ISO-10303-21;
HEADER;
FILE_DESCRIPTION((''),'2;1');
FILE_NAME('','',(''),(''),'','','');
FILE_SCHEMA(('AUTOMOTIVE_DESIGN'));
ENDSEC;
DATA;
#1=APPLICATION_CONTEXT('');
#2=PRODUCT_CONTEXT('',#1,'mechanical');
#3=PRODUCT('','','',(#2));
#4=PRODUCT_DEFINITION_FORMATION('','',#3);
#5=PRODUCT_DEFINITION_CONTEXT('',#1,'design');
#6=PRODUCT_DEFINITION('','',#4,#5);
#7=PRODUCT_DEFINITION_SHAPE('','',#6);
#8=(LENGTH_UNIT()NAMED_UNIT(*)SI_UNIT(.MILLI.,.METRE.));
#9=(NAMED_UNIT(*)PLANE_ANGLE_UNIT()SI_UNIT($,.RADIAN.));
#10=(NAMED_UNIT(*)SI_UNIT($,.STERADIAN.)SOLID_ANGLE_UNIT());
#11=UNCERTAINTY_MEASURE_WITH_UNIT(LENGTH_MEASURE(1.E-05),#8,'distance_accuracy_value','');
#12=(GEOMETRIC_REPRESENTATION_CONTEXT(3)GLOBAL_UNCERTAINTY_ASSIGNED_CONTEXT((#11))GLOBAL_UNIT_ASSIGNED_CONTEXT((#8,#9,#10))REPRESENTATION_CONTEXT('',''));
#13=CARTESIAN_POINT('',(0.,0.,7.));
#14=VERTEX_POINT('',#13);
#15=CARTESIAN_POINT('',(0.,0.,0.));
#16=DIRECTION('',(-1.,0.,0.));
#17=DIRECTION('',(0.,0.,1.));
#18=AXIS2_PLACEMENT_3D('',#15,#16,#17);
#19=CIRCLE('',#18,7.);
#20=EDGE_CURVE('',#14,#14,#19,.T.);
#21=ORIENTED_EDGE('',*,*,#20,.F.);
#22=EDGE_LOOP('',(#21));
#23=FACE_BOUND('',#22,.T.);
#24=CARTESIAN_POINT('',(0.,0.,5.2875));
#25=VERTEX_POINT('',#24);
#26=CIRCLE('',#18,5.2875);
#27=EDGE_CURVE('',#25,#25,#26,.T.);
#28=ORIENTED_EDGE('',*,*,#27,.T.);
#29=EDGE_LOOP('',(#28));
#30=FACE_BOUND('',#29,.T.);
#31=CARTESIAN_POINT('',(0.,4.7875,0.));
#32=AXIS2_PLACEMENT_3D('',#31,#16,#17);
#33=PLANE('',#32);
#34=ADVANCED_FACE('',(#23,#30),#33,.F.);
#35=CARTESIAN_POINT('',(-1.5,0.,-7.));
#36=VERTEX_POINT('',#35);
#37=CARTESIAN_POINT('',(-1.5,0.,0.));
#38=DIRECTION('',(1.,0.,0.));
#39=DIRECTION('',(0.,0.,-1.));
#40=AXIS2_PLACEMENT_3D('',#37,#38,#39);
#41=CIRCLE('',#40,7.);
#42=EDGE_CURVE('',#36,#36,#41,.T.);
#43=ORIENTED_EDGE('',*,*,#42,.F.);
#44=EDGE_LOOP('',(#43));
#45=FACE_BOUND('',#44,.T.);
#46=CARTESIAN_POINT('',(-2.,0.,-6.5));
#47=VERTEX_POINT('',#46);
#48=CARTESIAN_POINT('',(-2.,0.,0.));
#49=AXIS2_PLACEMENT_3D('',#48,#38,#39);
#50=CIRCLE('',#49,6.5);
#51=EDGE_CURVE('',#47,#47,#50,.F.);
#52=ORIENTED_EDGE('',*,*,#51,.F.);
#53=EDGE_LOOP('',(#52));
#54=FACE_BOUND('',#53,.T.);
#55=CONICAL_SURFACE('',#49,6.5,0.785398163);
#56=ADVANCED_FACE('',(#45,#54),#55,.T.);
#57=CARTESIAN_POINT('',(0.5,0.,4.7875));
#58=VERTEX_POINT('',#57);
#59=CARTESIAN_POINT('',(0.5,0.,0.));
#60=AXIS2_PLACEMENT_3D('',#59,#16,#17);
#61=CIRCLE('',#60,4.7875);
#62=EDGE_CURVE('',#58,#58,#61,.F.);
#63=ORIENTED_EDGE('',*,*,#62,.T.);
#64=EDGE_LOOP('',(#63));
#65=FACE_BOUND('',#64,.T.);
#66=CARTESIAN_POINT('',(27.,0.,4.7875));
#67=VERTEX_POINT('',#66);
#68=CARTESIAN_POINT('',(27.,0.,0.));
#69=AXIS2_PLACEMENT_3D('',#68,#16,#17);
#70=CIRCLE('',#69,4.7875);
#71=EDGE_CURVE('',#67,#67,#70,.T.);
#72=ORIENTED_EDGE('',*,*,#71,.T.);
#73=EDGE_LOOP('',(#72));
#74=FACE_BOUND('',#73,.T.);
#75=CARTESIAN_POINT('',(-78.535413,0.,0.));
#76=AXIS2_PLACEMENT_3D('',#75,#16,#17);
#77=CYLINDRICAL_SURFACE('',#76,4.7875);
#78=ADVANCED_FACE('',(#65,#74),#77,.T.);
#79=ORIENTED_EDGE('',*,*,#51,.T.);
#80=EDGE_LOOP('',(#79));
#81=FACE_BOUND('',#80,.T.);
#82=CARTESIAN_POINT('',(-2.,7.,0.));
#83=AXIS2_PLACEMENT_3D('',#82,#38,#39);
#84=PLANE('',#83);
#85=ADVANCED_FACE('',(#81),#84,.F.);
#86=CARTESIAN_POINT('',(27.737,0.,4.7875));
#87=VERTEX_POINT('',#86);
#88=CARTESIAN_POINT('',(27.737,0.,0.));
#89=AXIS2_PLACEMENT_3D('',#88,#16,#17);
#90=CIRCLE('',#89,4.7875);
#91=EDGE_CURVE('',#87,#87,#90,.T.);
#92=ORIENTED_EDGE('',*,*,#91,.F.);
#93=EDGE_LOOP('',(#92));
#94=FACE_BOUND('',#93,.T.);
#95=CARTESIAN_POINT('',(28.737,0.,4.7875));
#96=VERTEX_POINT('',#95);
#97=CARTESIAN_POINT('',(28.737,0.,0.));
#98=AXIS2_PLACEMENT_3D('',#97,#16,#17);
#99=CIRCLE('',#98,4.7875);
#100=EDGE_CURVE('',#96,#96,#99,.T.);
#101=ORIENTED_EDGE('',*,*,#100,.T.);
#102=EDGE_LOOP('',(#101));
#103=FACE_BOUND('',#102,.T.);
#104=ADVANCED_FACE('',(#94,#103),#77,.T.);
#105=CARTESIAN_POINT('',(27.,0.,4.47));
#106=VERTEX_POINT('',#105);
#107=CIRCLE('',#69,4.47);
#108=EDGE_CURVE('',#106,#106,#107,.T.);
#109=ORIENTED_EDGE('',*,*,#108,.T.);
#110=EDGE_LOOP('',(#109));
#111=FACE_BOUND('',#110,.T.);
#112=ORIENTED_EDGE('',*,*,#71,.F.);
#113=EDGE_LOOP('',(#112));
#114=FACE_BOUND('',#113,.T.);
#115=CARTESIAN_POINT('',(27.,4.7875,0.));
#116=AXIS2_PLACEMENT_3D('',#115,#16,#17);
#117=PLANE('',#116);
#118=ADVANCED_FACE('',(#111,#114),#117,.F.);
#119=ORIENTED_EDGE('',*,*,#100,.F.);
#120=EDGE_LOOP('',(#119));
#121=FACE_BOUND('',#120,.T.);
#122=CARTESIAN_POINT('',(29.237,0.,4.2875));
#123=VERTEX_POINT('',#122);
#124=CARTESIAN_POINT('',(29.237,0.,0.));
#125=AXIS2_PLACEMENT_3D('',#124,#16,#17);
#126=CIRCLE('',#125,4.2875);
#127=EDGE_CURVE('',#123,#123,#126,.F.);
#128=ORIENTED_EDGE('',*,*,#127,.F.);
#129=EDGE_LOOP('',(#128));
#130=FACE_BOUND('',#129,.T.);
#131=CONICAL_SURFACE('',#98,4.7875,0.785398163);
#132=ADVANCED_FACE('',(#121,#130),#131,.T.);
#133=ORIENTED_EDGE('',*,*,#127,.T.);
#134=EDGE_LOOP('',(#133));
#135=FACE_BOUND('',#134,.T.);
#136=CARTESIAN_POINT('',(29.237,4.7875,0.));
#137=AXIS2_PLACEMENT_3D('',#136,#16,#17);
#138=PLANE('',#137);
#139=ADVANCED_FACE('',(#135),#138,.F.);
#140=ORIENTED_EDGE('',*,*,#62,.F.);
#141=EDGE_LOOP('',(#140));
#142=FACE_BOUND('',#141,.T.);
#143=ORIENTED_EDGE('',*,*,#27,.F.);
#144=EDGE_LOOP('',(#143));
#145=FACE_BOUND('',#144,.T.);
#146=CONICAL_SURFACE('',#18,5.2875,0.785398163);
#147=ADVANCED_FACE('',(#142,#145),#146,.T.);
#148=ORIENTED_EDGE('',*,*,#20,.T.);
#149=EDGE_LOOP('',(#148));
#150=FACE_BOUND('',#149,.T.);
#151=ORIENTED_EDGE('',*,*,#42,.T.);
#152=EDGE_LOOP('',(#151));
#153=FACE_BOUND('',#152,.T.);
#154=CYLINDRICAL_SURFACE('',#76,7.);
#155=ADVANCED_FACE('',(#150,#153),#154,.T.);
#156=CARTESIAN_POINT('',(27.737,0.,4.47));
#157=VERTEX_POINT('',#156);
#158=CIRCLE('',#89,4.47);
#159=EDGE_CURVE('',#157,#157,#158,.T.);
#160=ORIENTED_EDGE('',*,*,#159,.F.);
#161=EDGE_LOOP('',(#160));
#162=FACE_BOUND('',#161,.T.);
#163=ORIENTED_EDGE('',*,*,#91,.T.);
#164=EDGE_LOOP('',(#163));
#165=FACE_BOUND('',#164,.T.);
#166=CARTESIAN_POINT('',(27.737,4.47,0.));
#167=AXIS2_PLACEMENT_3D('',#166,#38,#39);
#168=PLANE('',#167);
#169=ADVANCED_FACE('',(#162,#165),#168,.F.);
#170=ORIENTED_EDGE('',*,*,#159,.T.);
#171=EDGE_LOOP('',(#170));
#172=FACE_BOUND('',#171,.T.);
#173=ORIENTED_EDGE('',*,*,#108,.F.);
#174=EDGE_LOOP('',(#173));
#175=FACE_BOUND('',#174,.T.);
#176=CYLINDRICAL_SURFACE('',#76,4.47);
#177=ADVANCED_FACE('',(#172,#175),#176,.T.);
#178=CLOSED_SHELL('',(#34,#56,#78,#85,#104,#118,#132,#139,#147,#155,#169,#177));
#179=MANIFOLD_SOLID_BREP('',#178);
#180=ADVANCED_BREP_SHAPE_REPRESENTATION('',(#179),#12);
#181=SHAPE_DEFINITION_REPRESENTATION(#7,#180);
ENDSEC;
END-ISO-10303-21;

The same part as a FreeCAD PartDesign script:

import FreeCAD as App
import Part
import Sketcher

V = App.Vector


def edges_at(feature, points):
    """Names of the edges that pass closest to the given points."""
    edges = feature.Shape.Edges
    near = lambda p: min(range(len(edges)), key=lambda i: edges[i].distToShape(Part.Vertex(*p))[0])
    return sorted({f"Edge{near(p) + 1}" for p in points})

doc = App.newDocument("Part")
body = doc.addObject("PartDesign::Body", "Body")

sketch1 = body.newObject("Sketcher::SketchObject", "Sketch")
sketch1.AttachmentSupport = (doc.getObject("XY_Plane"), [""])
sketch1.MapMode = "FlatFace"
sketch1.addGeometry(Part.LineSegment(V(0, 4.7875, 0), V(0, 7, 0)), False)
sketch1.addGeometry(Part.LineSegment(V(0, 7, 0), V(-2, 7, 0)), False)
sketch1.addGeometry(Part.LineSegment(V(-2, 7, 0), V(-2, 0, 0)), False)
sketch1.addGeometry(Part.LineSegment(V(-2, 0, 0), V(29.237, 0, 0)), False)
sketch1.addGeometry(Part.LineSegment(V(29.237, 0, 0), V(29.237, 4.7875, 0)), False)
sketch1.addGeometry(Part.LineSegment(V(29.237, 4.7875, 0), V(27.737, 4.7875, 0)), False)
sketch1.addGeometry(Part.LineSegment(V(27.737, 4.7875, 0), V(27.737, 4.47, 0)), False)
sketch1.addGeometry(Part.LineSegment(V(27.737, 4.47, 0), V(27, 4.47, 0)), False)
sketch1.addGeometry(Part.LineSegment(V(27, 4.47, 0), V(27, 4.7875, 0)), False)
sketch1.addGeometry(Part.LineSegment(V(27, 4.7875, 0), V(0, 4.7875, 0)), False)
sketch1.addConstraint(Sketcher.Constraint("Coincident", 0, 2, 1, 1))
sketch1.addConstraint(Sketcher.Constraint("Coincident", 1, 2, 2, 1))
sketch1.addConstraint(Sketcher.Constraint("Coincident", 2, 2, 3, 1))
sketch1.addConstraint(Sketcher.Constraint("Coincident", 3, 2, 4, 1))
sketch1.addConstraint(Sketcher.Constraint("Coincident", 4, 2, 5, 1))
sketch1.addConstraint(Sketcher.Constraint("Coincident", 5, 2, 6, 1))
sketch1.addConstraint(Sketcher.Constraint("Coincident", 6, 2, 7, 1))
sketch1.addConstraint(Sketcher.Constraint("Coincident", 7, 2, 8, 1))
sketch1.addConstraint(Sketcher.Constraint("Coincident", 8, 2, 9, 1))
sketch1.addConstraint(Sketcher.Constraint("Coincident", 9, 2, 0, 1))
sketch1.addConstraint(Sketcher.Constraint("Vertical", 0))
sketch1.addConstraint(Sketcher.Constraint("Horizontal", 1))
sketch1.addConstraint(Sketcher.Constraint("Vertical", 2))
sketch1.addConstraint(Sketcher.Constraint("Horizontal", 3))
sketch1.addConstraint(Sketcher.Constraint("Vertical", 4))
sketch1.addConstraint(Sketcher.Constraint("Horizontal", 5))
sketch1.addConstraint(Sketcher.Constraint("Vertical", 6))
sketch1.addConstraint(Sketcher.Constraint("Horizontal", 7))
sketch1.addConstraint(Sketcher.Constraint("Vertical", 8))
sketch1.addConstraint(Sketcher.Constraint("Horizontal", 9))
sketch1.addConstraint(Sketcher.Constraint("PointOnObject", 0, 2, -2))
sketch1.addConstraint(Sketcher.Constraint("PointOnObject", 2, 2, -1))
sketch1.addConstraint(Sketcher.Constraint("Horizontal", 5, 2, 8, 2))
sketch1.addConstraint(Sketcher.Constraint("DistanceX", 1, 2, 1, 1, 2.0))
sketch1.addConstraint(Sketcher.Constraint("DistanceX", 9, 2, 9, 1, 27.0))
sketch1.addConstraint(Sketcher.Constraint("DistanceY", 2, 2, 2, 1, 7.0))
sketch1.addConstraint(Sketcher.Constraint("DistanceX", 5, 2, 5, 1, 1.5))
sketch1.addConstraint(Sketcher.Constraint("DistanceX", 3, 1, 3, 2, 31.237))
sketch1.addConstraint(Sketcher.Constraint("DistanceY", -1, 1, 6, 2, 4.47))
sketch1.addConstraint(Sketcher.Constraint("DistanceY", 0, 1, 0, 2, 2.2125))
revolution = body.newObject("PartDesign::Revolution", "Revolution")
revolution.Profile = sketch1
revolution.ReferenceAxis = (sketch1, ["H_Axis"])
revolution.Angle = 360
doc.recompute()

chamfer = body.newObject("PartDesign::Chamfer", "Chamfer")
chamfer.Base = (revolution, edges_at(revolution, [(0, -4.787, 0), (-2, -7, 0), (29.237, -4.787, 0)]))
chamfer.Size = 0.5

doc.recompute()
